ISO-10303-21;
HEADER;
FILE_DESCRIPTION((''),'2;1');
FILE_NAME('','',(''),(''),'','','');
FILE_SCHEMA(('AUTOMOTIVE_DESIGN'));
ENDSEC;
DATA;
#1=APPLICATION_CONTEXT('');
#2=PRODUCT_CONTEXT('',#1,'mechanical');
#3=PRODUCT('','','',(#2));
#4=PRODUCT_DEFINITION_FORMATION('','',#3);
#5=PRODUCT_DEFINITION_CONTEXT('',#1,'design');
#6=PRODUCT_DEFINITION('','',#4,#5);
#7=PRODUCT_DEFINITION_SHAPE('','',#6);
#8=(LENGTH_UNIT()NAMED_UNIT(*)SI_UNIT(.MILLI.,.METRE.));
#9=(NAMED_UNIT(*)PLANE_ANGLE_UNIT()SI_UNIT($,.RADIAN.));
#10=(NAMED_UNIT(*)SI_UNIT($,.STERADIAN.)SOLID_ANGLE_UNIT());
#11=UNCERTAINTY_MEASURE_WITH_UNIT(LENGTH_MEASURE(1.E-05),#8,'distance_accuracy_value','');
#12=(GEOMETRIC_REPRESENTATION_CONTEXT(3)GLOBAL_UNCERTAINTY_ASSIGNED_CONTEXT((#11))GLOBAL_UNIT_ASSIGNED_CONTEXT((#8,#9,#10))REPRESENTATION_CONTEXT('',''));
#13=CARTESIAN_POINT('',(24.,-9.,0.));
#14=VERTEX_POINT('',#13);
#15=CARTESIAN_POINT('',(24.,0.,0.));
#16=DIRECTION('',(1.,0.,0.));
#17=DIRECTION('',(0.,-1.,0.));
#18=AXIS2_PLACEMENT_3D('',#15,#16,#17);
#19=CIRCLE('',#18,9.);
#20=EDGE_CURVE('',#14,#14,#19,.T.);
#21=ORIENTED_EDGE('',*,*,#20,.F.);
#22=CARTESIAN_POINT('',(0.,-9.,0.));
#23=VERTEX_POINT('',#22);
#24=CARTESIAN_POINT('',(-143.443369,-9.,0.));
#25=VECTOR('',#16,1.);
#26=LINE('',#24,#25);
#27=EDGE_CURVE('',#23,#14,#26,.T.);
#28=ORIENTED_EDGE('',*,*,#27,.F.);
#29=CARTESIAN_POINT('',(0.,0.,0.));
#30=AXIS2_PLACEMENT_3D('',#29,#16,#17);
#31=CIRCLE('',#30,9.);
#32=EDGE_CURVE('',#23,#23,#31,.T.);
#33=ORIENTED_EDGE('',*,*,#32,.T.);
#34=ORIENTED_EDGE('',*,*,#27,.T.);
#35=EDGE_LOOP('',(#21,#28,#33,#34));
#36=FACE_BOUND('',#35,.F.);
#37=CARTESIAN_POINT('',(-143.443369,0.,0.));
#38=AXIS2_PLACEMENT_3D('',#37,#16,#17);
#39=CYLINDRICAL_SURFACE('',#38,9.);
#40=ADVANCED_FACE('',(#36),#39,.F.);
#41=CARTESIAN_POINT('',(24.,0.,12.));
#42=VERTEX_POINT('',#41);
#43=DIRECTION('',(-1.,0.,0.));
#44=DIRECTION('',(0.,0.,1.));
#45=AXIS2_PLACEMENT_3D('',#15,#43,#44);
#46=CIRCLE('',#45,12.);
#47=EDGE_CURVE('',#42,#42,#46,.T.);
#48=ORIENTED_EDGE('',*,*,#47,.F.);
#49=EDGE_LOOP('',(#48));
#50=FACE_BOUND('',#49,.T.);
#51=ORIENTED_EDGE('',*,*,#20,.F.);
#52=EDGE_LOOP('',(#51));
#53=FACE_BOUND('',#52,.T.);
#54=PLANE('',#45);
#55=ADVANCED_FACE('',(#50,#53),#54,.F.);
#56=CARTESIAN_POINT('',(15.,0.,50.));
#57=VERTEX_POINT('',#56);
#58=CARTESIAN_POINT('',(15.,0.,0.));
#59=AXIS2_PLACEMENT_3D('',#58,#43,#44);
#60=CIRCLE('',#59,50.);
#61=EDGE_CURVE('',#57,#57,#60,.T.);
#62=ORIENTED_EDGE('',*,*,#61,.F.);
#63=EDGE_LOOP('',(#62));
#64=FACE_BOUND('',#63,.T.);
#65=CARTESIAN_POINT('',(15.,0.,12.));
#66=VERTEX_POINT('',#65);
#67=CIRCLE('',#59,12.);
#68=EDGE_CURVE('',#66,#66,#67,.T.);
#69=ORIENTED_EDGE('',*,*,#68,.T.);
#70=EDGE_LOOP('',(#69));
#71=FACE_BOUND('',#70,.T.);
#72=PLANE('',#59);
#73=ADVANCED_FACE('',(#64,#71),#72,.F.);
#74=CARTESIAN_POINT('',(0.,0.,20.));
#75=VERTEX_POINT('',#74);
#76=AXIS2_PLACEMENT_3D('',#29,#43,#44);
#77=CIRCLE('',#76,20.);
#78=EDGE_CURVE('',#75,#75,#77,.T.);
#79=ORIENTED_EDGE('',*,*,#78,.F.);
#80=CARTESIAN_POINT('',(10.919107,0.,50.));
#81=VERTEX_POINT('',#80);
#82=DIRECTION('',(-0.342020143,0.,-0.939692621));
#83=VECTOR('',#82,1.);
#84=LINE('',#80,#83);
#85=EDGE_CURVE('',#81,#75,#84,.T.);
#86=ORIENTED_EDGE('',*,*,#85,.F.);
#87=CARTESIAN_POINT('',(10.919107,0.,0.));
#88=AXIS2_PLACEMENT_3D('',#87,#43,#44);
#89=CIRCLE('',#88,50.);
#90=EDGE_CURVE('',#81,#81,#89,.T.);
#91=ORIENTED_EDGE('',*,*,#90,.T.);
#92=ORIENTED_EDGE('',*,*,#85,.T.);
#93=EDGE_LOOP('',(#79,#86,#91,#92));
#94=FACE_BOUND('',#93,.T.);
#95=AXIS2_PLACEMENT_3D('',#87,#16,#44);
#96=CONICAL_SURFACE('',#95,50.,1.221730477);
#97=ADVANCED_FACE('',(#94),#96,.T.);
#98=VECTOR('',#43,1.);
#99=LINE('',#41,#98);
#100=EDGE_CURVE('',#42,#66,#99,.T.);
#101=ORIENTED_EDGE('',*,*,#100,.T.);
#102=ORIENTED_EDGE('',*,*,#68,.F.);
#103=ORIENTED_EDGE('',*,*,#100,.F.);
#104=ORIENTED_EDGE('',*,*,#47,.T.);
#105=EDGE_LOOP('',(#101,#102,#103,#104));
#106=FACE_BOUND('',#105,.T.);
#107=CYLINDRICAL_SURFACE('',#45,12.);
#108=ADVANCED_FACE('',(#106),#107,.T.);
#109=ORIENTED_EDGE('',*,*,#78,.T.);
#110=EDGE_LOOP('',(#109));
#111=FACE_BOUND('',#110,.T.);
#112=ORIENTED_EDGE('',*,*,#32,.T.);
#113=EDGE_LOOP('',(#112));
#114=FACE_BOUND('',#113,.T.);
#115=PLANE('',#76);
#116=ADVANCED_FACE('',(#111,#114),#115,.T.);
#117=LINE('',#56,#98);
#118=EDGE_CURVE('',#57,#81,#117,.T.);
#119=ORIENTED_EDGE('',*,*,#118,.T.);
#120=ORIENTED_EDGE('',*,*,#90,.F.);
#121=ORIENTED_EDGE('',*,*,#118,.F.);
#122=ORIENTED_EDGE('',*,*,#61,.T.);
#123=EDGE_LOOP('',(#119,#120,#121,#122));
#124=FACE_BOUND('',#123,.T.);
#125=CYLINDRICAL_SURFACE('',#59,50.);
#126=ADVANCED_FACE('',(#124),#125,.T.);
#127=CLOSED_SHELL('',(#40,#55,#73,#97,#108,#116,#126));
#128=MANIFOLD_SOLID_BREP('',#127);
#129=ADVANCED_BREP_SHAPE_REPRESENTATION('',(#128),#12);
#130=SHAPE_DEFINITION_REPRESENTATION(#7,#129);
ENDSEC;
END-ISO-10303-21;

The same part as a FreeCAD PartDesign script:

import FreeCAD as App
import Part
import Sketcher

V = App.Vector
Q = App.Units.Quantity


def add_polygon(sketch, points):
    """Adds a closed chain of lines whose ends are joined by coincident constraints."""
    first, n = sketch.GeometryCount, len(points)
    for a, b in zip(points, points[1:] + points[:1]):
        sketch.addGeometry(Part.LineSegment(App.Vector(*a, 0), App.Vector(*b, 0)), False)
    for i in range(n):
        sketch.addConstraint(Sketcher.Constraint("Coincident", first + i, 2, first + (i + 1) % n, 1))

doc = App.newDocument("Part")
params = doc.addObject("Spreadsheet::Sheet", "Params")
for row, (alias, value) in enumerate([
    ("sketch1_width", "24 mm"),
    ("sketch1_width2", "9 mm"),
    ("sketch1_height", "20 mm"),
    ("sketch1_height2", "12 mm"),
    ("sketch1_height3", "38 mm"),
    ("revolution_angle", "360 deg"),
    ("sketch2_diameter", "18 mm"),
    ("hole_diameter", "18 mm"),
], start=1):
    params.set(f"A{row}", alias)
    params.set(f"B{row}", "=" + value)
    params.setAlias(f"B{row}", alias)

body = doc.addObject("PartDesign::Body", "Body")

sketch1 = body.newObject("Sketcher::SketchObject", "Sketch")
sketch1.AttachmentSupport = (doc.getObject("XZ_Plane"), [""])
sketch1.MapMode = "FlatFace"
add_polygon(sketch1, [(10.9, 50), (0, 20), (0, 0), (24, 0), (24, 12), (15, 12), (15, 50)])
sketch1.addConstraint(Sketcher.Constraint("Vertical", 1))
sketch1.addConstraint(Sketcher.Constraint("Horizontal", 2))
sketch1.addConstraint(Sketcher.Constraint("Vertical", 3))
sketch1.addConstraint(Sketcher.Constraint("Horizontal", 4))
sketch1.addConstraint(Sketcher.Constraint("Vertical", 5))
sketch1.addConstraint(Sketcher.Constraint("Horizontal", 6))
sketch1.addConstraint(Sketcher.Constraint("Coincident", 1, 2, -1, 1))
sketch1.addConstraint(Sketcher.Constraint("DistanceX", 2, 1, 2, 2, 24.0))
sketch1.addConstraint(Sketcher.Constraint("DistanceX", 4, 2, 4, 1, 9.0))
sketch1.addConstraint(Sketcher.Constraint("DistanceY", 1, 2, 1, 1, 20.0))
sketch1.addConstraint(Sketcher.Constraint("DistanceY", 3, 1, 3, 2, 12.0))
sketch1.addConstraint(Sketcher.Constraint("DistanceY", 5, 1, 5, 2, 38.0))
sketch1.addConstraint(Sketcher.Constraint("Angle", 0, Q("-110 deg")))
sketch1.setExpression("Constraints[14]", "Params.sketch1_width")
sketch1.setExpression("Constraints[15]", "Params.sketch1_width2")
sketch1.setExpression("Constraints[16]", "Params.sketch1_height")
sketch1.setExpression("Constraints[17]", "Params.sketch1_height2")
sketch1.setExpression("Constraints[18]", "Params.sketch1_height3")
revolution = body.newObject("PartDesign::Revolution", "Revolution")
revolution.Profile = sketch1
revolution.ReferenceAxis = (sketch1, ["H_Axis"])
revolution.setExpression("Angle", "Params.revolution_angle")

sketch2 = body.newObject("Sketcher::SketchObject", "Sketch001")
sketch2.AttachmentSupport = (doc.getObject("YZ_Plane"), [""])
sketch2.MapMode = "FlatFace"
sketch2.addGeometry(Part.Circle(V(0, 0, 0), V(0, 0, 1), 9), False)
sketch2.addConstraint(Sketcher.Constraint("Coincident", 0, 3, -1, 1))
sketch2.addConstraint(Sketcher.Constraint("Diameter", 0, 18.0))
sketch2.setExpression("Constraints[1]", "Params.sketch2_diameter")
doc.recompute()
hole = body.newObject("PartDesign::Hole", "Hole")
hole.Profile = sketch2
hole.ThreadType = "None"
hole.setExpression("Diameter", "Params.hole_diameter")
hole.DepthType = "ThroughAll"
hole.Reversed = True

doc.recompute()
